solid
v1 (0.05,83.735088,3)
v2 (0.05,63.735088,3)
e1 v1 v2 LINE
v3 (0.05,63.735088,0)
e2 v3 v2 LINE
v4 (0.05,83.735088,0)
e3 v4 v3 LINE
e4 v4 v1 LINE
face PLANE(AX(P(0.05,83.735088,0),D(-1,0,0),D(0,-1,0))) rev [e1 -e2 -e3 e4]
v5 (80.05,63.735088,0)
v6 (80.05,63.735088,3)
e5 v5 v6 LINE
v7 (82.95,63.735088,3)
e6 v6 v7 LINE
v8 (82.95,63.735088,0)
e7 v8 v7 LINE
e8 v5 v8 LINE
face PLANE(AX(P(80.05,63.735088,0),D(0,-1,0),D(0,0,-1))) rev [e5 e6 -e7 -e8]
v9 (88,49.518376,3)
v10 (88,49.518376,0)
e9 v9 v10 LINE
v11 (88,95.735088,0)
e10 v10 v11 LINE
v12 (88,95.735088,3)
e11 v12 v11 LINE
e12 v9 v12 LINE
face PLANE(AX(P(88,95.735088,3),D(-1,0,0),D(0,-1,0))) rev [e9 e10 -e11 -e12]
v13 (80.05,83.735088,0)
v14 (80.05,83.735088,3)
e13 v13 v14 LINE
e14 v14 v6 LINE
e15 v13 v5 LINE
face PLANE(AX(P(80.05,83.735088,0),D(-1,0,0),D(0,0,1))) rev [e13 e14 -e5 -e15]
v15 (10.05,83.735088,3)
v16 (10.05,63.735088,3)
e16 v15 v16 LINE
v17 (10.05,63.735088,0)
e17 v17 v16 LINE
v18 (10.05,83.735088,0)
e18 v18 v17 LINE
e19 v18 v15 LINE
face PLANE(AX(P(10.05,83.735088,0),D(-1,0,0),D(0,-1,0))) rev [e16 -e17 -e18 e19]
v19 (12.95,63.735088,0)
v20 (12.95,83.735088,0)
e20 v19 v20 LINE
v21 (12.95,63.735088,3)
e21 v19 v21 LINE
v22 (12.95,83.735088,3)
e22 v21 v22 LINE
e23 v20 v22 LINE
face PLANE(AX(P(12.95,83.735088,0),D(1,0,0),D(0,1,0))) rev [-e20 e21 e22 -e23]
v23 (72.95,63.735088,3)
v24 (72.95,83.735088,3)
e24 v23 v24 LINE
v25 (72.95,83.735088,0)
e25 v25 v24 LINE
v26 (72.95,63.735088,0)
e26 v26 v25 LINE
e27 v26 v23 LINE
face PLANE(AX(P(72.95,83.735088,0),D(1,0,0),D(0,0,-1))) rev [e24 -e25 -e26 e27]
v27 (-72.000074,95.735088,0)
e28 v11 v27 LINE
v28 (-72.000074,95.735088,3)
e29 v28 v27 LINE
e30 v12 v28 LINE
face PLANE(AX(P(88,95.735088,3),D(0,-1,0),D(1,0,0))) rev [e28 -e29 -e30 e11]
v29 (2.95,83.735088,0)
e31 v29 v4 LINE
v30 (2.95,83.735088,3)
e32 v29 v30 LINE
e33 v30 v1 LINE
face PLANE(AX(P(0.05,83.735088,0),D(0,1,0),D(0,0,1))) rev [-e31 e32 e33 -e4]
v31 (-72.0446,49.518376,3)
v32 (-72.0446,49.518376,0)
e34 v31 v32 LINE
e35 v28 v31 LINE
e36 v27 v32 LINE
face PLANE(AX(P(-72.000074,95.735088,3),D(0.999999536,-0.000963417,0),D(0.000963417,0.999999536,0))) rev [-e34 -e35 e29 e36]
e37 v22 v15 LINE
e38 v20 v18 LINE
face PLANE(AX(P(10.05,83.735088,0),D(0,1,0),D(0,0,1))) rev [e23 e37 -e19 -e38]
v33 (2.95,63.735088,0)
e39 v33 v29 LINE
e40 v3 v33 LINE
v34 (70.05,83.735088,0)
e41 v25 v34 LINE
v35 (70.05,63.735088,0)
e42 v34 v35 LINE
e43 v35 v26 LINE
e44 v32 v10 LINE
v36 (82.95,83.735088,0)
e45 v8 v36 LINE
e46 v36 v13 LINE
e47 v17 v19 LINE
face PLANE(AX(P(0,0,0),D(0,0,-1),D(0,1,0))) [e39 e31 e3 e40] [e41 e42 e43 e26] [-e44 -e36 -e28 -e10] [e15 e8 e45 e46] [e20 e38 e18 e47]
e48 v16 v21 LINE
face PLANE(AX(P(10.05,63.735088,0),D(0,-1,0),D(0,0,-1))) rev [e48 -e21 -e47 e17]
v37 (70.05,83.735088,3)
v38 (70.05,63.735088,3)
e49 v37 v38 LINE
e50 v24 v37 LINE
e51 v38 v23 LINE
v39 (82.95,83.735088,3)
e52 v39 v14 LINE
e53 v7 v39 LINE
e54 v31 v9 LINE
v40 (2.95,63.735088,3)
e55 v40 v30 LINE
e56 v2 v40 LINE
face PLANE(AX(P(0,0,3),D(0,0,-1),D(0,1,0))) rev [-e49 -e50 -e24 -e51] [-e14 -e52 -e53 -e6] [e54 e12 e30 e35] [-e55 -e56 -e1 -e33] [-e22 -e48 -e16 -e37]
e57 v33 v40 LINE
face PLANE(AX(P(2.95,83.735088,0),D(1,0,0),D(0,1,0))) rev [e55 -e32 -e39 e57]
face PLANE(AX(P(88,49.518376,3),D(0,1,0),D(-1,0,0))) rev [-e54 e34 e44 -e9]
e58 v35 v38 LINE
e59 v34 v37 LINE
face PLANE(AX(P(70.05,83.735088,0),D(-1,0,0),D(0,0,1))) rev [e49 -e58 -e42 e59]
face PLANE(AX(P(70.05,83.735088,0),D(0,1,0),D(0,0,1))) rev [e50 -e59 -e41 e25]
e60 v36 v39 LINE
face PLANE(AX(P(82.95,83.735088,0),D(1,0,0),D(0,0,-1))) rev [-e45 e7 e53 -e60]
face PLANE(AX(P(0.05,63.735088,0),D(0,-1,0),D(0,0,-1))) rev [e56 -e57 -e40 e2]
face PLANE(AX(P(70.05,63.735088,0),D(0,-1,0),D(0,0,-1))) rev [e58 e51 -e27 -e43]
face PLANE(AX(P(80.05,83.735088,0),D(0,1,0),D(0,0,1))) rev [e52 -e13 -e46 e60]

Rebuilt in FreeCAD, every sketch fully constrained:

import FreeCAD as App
import Part
import Sketcher

V = App.Vector

doc = App.newDocument("Part")
body = doc.addObject("PartDesign::Body", "Body")

sketch1 = body.newObject("Sketcher::SketchObject", "Sketch")
sketch1.AttachmentSupport = (doc.getObject("XY_Plane"), [""])
sketch1.MapMode = "FlatFace"
sketch1.addGeometry(Part.LineSegment(V(88, 96, 0), V(-72, 96, 0)), False)
sketch1.addGeometry(Part.LineSegment(V(-72, 96, 0), V(-72, 50, 0)), False)
sketch1.addGeometry(Part.LineSegment(V(-72, 50, 0), V(88, 50, 0)), False)
sketch1.addGeometry(Part.LineSegment(V(88, 50, 0), V(88, 96, 0)), False)
sketch1.addConstraint(Sketcher.Constraint("Coincident", 0, 2, 1, 1))
sketch1.addConstraint(Sketcher.Constraint("Coincident", 1, 2, 2, 1))
sketch1.addConstraint(Sketcher.Constraint("Coincident", 2, 2, 3, 1))
sketch1.addConstraint(Sketcher.Constraint("Coincident", 3, 2, 0, 1))
sketch1.addConstraint(Sketcher.Constraint("Horizontal", 0))
sketch1.addConstraint(Sketcher.Constraint("Horizontal", 2))
sketch1.addConstraint(Sketcher.Constraint("Vertical", 3))
sketch1.addConstraint(Sketcher.Constraint("DistanceX", -1, 1, 2, 2, 88.0))
sketch1.addConstraint(Sketcher.Constraint("DistanceX", 2, 1, 2, 2, 160.0446))
sketch1.addConstraint(Sketcher.Constraint("DistanceY", 3, 1, 3, 2, 46.216712))
sketch1.addConstraint(Sketcher.Constraint("DistanceX", 0, 2, 0, 1, 160.000074))
sketch1.addConstraint(Sketcher.Constraint("DistanceY", -1, 1, 0, 2, 95.735088))
pad1 = body.newObject("PartDesign::Pad", "Pad")
pad1.Profile = sketch1
pad1.Length = 3

sketch2 = body.newObject("Sketcher::SketchObject", "Sketch001")
sketch2.AttachmentSupport = (doc.getObject("XY_Plane"), [""])
sketch2.MapMode = "FlatFace"
sketch2.AttachmentOffset = App.Placement(V(0, 0, 3), App.Rotation())
sketch2.addGeometry(Part.LineSegment(V(0.1, 83.7, 0), V(0.1, 63.7, 0)), False)
sketch2.addGeometry(Part.LineSegment(V(0.1, 63.7, 0), V(3, 63.7, 0)), False)
sketch2.addGeometry(Part.LineSegment(V(3, 63.7, 0), V(3, 83.7, 0)), False)
sketch2.addGeometry(Part.LineSegment(V(3, 83.7, 0), V(0.1, 83.7, 0)), False)
sketch2.addGeometry(Part.LineSegment(V(10.1, 83.7, 0), V(10.1, 63.7, 0)), False)
sketch2.addGeometry(Part.LineSegment(V(10.1, 63.7, 0), V(12.9, 63.7, 0)), False)
sketch2.addGeometry(Part.LineSegment(V(12.9, 63.7, 0), V(12.9, 83.7, 0)), False)
sketch2.addGeometry(Part.LineSegment(V(12.9, 83.7, 0), V(10.1, 83.7, 0)), False)
sketch2.addGeometry(Part.LineSegment(V(70, 83.7, 0), V(70, 63.7, 0)), False)
sketch2.addGeometry(Part.LineSegment(V(70, 63.7, 0), V(73, 63.7, 0)), False)
sketch2.addGeometry(Part.LineSegment(V(73, 63.7, 0), V(73, 83.7, 0)), False)
sketch2.addGeometry(Part.LineSegment(V(73, 83.7, 0), V(70, 83.7, 0)), False)
sketch2.addGeometry(Part.LineSegment(V(80, 83.7, 0), V(80, 63.7, 0)), False)
sketch2.addGeometry(Part.LineSegment(V(80, 63.7, 0), V(83, 63.7, 0)), False)
sketch2.addGeometry(Part.LineSegment(V(83, 63.7, 0), V(83, 83.7, 0)), False)
sketch2.addGeometry(Part.LineSegment(V(83, 83.7, 0), V(80, 83.7, 0)), False)
sketch2.addConstraint(Sketcher.Constraint("Coincident", 0, 2, 1, 1))
sketch2.addConstraint(Sketcher.Constraint("Coincident", 1, 2, 2, 1))
sketch2.addConstraint(Sketcher.Constraint("Coincident", 2, 2, 3, 1))
sketch2.addConstraint(Sketcher.Constraint("Coincident", 3, 2, 0, 1))
sketch2.addConstraint(Sketcher.Constraint("Coincident", 4, 2, 5, 1))
sketch2.addConstraint(Sketcher.Constraint("Coincident", 5, 2, 6, 1))
sketch2.addConstraint(Sketcher.Constraint("Coincident", 6, 2, 7, 1))
sketch2.addConstraint(Sketcher.Constraint("Coincident", 7, 2, 4, 1))
sketch2.addConstraint(Sketcher.Constraint("Coincident", 8, 2, 9, 1))
sketch2.addConstraint(Sketcher.Constraint("Coincident", 9, 2, 10, 1))
sketch2.addConstraint(Sketcher.Constraint("Coincident", 10, 2, 11, 1))
sketch2.addConstraint(Sketcher.Constraint("Coincident", 11, 2, 8, 1))
sketch2.addConstraint(Sketcher.Constraint("Coincident", 12, 2, 13, 1))
sketch2.addConstraint(Sketcher.Constraint("Coincident", 13, 2, 14, 1))
sketch2.addConstraint(Sketcher.Constraint("Coincident", 14, 2, 15, 1))
sketch2.addConstraint(Sketcher.Constraint("Coincident", 15, 2, 12, 1))
sketch2.addConstraint(Sketcher.Constraint("Vertical", 0))
sketch2.addConstraint(Sketcher.Constraint("Horizontal", 1))
sketch2.addConstraint(Sketcher.Constraint("Vertical", 2))
sketch2.addConstraint(Sketcher.Constraint("Horizontal", 3))
sketch2.addConstraint(Sketcher.Constraint("Vertical", 4))
sketch2.addConstraint(Sketcher.Constraint("Horizontal", 5))
sketch2.addConstraint(Sketcher.Constraint("Vertical", 6))
sketch2.addConstraint(Sketcher.Constraint("Horizontal", 7))
sketch2.addConstraint(Sketcher.Constraint("Vertical", 8))
sketch2.addConstraint(Sketcher.Constraint("Horizontal", 9))
sketch2.addConstraint(Sketcher.Constraint("Vertical", 10))
sketch2.addConstraint(Sketcher.Constraint("Horizontal", 11))
sketch2.addConstraint(Sketcher.Constraint("Vertical", 12))
sketch2.addConstraint(Sketcher.Constraint("Horizontal", 13))
sketch2.addConstraint(Sketcher.Constraint("Vertical", 14))
sketch2.addConstraint(Sketcher.Constraint("Horizontal", 15))
sketch2.addConstraint(Sketcher.Constraint("Horizontal", 1, 2, 4, 2))
sketch2.addConstraint(Sketcher.Constraint("Horizontal", 3, 2, 6, 2))
sketch2.addConstraint(Sketcher.Constraint("Horizontal", 5, 2, 8, 2))
sketch2.addConstraint(Sketcher.Constraint("Horizontal", 7, 2, 10, 2))
sketch2.addConstraint(Sketcher.Constraint("Horizontal", 9, 2, 12, 2))
sketch2.addConstraint(Sketcher.Constraint("Horizontal", 11, 2, 14, 2))
sketch2.addConstraint(Sketcher.Constraint("Equal", 3, 5))
sketch2.addConstraint(Sketcher.Constraint("Equal", 7, 9))
sketch2.addConstraint(Sketcher.Constraint("Equal", 11, 13))
sketch2.addConstraint(Sketcher.Constraint("DistanceY", 0, 2, 0, 1, 20.0))
sketch2.addConstraint(Sketcher.Constraint("DistanceX", 1, 1, 1, 2, 2.9))
sketch2.addConstraint(Sketcher.Constraint("DistanceX", 0, 2, 4, 2, 10.0))
sketch2.addConstraint(Sketcher.Constraint("DistanceX", 4, 2, 8, 2, 60.0))
sketch2.addConstraint(Sketcher.Constraint("DistanceX", 8, 2, 12, 2, 10.0))
sketch2.addConstraint(Sketcher.Constraint("DistanceX", -1, 1, 0, 2, 0.05))
sketch2.addConstraint(Sketcher.Constraint("DistanceY", -1, 1, 0, 2, 63.735088))
pocket1 = body.newObject("PartDesign::Pocket", "Pocket")
pocket1.Profile = sketch2
pocket1.Type = "ThroughAll"

doc.recompute()
